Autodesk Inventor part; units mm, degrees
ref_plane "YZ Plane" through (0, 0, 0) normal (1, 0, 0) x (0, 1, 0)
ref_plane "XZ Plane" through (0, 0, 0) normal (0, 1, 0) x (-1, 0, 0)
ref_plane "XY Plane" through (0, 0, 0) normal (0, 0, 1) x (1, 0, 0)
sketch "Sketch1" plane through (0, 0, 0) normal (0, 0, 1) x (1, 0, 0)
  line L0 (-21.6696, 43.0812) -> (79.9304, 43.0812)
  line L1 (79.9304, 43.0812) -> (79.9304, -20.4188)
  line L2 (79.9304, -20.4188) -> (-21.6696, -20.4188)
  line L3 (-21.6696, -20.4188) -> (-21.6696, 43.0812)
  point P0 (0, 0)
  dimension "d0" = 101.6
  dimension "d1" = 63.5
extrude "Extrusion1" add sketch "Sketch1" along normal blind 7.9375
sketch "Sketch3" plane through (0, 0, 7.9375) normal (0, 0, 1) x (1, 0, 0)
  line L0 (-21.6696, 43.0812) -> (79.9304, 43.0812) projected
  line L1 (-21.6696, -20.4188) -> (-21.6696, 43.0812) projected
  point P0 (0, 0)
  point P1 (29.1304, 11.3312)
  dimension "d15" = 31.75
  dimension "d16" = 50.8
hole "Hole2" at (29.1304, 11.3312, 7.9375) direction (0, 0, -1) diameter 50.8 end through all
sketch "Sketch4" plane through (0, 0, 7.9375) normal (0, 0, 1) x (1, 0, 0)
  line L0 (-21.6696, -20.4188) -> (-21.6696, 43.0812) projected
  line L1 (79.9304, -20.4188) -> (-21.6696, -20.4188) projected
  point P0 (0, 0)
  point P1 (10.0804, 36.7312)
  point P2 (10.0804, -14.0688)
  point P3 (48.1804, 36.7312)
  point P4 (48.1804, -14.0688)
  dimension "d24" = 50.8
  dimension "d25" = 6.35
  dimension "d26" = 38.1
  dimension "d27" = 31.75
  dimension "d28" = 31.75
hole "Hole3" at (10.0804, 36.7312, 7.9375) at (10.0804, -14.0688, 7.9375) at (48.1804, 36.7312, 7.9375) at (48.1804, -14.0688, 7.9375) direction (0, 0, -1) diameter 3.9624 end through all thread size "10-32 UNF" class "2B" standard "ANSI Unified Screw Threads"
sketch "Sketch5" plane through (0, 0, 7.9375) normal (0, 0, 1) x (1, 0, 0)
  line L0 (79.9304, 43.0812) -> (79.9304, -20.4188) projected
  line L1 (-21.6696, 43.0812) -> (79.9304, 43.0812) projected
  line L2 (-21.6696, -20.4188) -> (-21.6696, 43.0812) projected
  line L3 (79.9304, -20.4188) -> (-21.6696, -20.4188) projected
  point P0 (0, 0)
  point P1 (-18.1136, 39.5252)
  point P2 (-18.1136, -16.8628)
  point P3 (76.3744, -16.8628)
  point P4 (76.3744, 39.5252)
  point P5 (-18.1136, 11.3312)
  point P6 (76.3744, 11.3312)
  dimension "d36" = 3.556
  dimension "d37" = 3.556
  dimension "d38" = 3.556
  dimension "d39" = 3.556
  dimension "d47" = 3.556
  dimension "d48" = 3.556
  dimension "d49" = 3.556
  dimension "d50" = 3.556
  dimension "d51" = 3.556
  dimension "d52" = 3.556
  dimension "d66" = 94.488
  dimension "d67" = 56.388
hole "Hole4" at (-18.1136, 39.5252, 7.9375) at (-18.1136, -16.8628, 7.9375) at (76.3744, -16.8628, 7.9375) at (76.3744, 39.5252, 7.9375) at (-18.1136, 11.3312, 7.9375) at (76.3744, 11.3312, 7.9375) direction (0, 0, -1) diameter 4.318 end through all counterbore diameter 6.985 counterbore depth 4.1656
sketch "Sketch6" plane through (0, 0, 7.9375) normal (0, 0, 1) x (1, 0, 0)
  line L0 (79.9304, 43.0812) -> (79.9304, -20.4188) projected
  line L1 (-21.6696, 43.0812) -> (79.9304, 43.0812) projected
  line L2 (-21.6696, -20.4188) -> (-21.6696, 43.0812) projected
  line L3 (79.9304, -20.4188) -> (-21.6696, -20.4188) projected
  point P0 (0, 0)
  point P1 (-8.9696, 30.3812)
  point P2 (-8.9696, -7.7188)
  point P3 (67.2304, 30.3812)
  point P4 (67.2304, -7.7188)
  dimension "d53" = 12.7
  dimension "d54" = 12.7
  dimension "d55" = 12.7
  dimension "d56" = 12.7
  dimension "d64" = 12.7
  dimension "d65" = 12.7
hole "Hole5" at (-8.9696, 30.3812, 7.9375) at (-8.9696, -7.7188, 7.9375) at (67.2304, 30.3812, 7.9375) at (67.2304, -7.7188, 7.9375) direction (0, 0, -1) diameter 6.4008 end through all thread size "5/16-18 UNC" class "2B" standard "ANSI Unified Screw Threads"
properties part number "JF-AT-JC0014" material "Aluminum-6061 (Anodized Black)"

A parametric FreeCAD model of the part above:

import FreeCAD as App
import Part
import Sketcher

V = App.Vector
Q = App.Units.Quantity


def add_polygon(sketch, points):
    """Adds a closed chain of lines whose ends are joined by coincident constraints."""
    first, n = sketch.GeometryCount, len(points)
    for a, b in zip(points, points[1:] + points[:1]):
        sketch.addGeometry(Part.LineSegment(App.Vector(*a, 0), App.Vector(*b, 0)), False)
    for i in range(n):
        sketch.addConstraint(Sketcher.Constraint("Coincident", first + i, 2, first + (i + 1) % n, 1))

doc = App.newDocument("Part")
params = doc.addObject("Spreadsheet::Sheet", "Params")
for row, (alias, value) in enumerate([
    ("sketch1_width", "4 in"),
    ("sketch1_height", "2.5 in"),
    ("pad1_length", "0.3125 in"),
    ("sketch2_diameter", "2 in"),
    ("hole_diameter", "2 in"),
    ("sketch3_diameter", "0.156 in"),
    ("hole2_diameter", "0.156 in"),
    ("sketch4_diameter", "0.17 in"),
    ("hole3_diameter", "0.17 in"),
    ("hole3_cbore_diameter", "0.275 in"),
    ("hole3_cbore_depth", "0.164 in"),
    ("sketch5_diameter", "0.252 in"),
    ("hole4_diameter", "0.252 in"),
], start=1):
    params.set(f"A{row}", alias)
    params.set(f"B{row}", "=" + value)
    params.setAlias(f"B{row}", alias)

body = doc.addObject("PartDesign::Body", "Body")

sketch1 = doc.addObject("Sketcher::SketchObject", "Sketch")
body.addObject(sketch1)
sketch1.AttachmentSupport = (doc.XY_Plane, [""])
sketch1.MapMode = "FlatFace"
add_polygon(sketch1, [(80, 43), (-22, 43), (-22, -20), (80, -20)])
sketch1.addConstraint(Sketcher.Constraint("Horizontal", 0))
sketch1.addConstraint(Sketcher.Constraint("Vertical", 1))
sketch1.addConstraint(Sketcher.Constraint("Horizontal", 2))
sketch1.addConstraint(Sketcher.Constraint("Vertical", 3))
sketch1.addConstraint(Sketcher.Constraint("DistanceX", 0, 2, 0, 1, Q("4 in")))
sketch1.addConstraint(Sketcher.Constraint("DistanceY", 1, 2, 1, 1, Q("2.5 in")))
sketch1.addConstraint(Sketcher.Constraint("DistanceY", -1, 1, 0, 2, Q("1.6961 in")))
sketch1.addConstraint(Sketcher.Constraint("DistanceX", 0, 2, -1, 1, Q("21.6696 mm")))
sketch1.setExpression("Constraints[8]", "Params.sketch1_width")
sketch1.setExpression("Constraints[9]", "Params.sketch1_height")
pad1 = doc.addObject("PartDesign::Pad", "Pad")
body.addObject(pad1)
pad1.Profile = sketch1
pad1.setExpression("Length", "Params.pad1_length")

sketch2 = doc.addObject("Sketcher::SketchObject", "Sketch001")
body.addObject(sketch2)
sketch2.AttachmentSupport = (doc.XY_Plane, [""])
sketch2.MapMode = "FlatFace"
sketch2.AttachmentOffset = App.Placement(V(0, 0, 0.3125 * 25.4), App.Rotation())
sketch2.addGeometry(Part.Circle(V(29, 11, 0), V(0, 0, 1), 25), False)
sketch2.addConstraint(Sketcher.Constraint("Diameter", 0, Q("2 in")))
sketch2.addConstraint(Sketcher.Constraint("DistanceY", -1, 1, 0, 3, Q("0.4461 in")))
sketch2.addConstraint(Sketcher.Constraint("DistanceX", -1, 1, 0, 3, Q("29.1304 mm")))
sketch2.setExpression("Constraints[0]", "Params.sketch2_diameter")
doc.recompute()
hole = doc.addObject("PartDesign::Hole", "Hole")
body.addObject(hole)
hole.Profile = sketch2
hole.ThreadType = "None"
hole.setExpression("Diameter", "Params.hole_diameter")
hole.DepthType = "ThroughAll"

sketch3 = doc.addObject("Sketcher::SketchObject", "Sketch002")
body.addObject(sketch3)
sketch3.AttachmentSupport = (doc.XY_Plane, [""])
sketch3.MapMode = "FlatFace"
sketch3.AttachmentOffset = App.Placement(V(0, 0, 0.3125 * 25.4), App.Rotation())
sketch3.addGeometry(Part.Circle(V(10.1, 36.7, 0), V(0, 0, 1), 2), False)
sketch3.addGeometry(Part.Circle(V(10.1, -14.1, 0), V(0, 0, 1), 2), False)
sketch3.addGeometry(Part.Circle(V(48.2, 36.7, 0), V(0, 0, 1), 2), False)
sketch3.addGeometry(Part.Circle(V(48.2, -14.1, 0), V(0, 0, 1), 2), False)
sketch3.addConstraint(Sketcher.Constraint("Equal", 0, 1))
sketch3.addConstraint(Sketcher.Constraint("Equal", 1, 2))
sketch3.addConstraint(Sketcher.Constraint("Equal", 2, 3))
sketch3.addConstraint(Sketcher.Constraint("Horizontal", 0, 3, 2, 3))
sketch3.addConstraint(Sketcher.Constraint("Horizontal", 1, 3, 3, 3))
sketch3.addConstraint(Sketcher.Constraint("Vertical", 0, 3, 1, 3))
sketch3.addConstraint(Sketcher.Constraint("Vertical", 2, 3, 3, 3))
sketch3.addConstraint(Sketcher.Constraint("Diameter", 0, Q("0.156 in")))
sketch3.addConstraint(Sketcher.Constraint("DistanceY", 1, 3, 0, 3, Q("2 in")))
sketch3.addConstraint(Sketcher.Constraint("DistanceX", 0, 3, 2, 3, Q("1.5 in")))
sketch3.addConstraint(Sketcher.Constraint("DistanceY", -1, 1, 0, 3, Q("1.4461 in")))
sketch3.addConstraint(Sketcher.Constraint("DistanceX", -1, 1, 0, 3, Q("10.0804 mm")))
sketch3.setExpression("Constraints[7]", "Params.sketch3_diameter")
doc.recompute()
hole2 = doc.addObject("PartDesign::Hole", "Hole001")
body.addObject(hole2)
hole2.Profile = sketch3
hole2.ThreadType = "None"
hole2.setExpression("Diameter", "Params.hole2_diameter")
hole2.DepthType = "ThroughAll"

sketch4 = doc.addObject("Sketcher::SketchObject", "Sketch003")
body.addObject(sketch4)
sketch4.AttachmentSupport = (doc.XY_Plane, [""])
sketch4.MapMode = "FlatFace"
sketch4.AttachmentOffset = App.Placement(V(0, 0, 0.3125 * 25.4), App.Rotation())
sketch4.addGeometry(Part.Circle(V(-18.1, 39.5, 0), V(0, 0, 1), 2.2), False)
sketch4.addGeometry(Part.Circle(V(-18.1, -16.9, 0), V(0, 0, 1), 2.2), False)
sketch4.addGeometry(Part.Circle(V(76.4, -16.9, 0), V(0, 0, 1), 2.2), False)
sketch4.addGeometry(Part.Circle(V(76.4, 39.5, 0), V(0, 0, 1), 2.2), False)
sketch4.addGeometry(Part.Circle(V(-18.1, 11.3, 0), V(0, 0, 1), 2.2), False)
sketch4.addGeometry(Part.Circle(V(76.4, 11.3, 0), V(0, 0, 1), 2.2), False)
sketch4.addConstraint(Sketcher.Constraint("Equal", 0, 1))
sketch4.addConstraint(Sketcher.Constraint("Equal", 1, 2))
sketch4.addConstraint(Sketcher.Constraint("Equal", 2, 3))
sketch4.addConstraint(Sketcher.Constraint("Equal", 3, 4))
sketch4.addConstraint(Sketcher.Constraint("Equal", 4, 5))
sketch4.addConstraint(Sketcher.Constraint("Horizontal", 1, 3, 2, 3))
sketch4.addConstraint(Sketcher.Constraint("Horizontal", 0, 3, 3, 3))
sketch4.addConstraint(Sketcher.Constraint("Horizontal", 4, 3, 5, 3))
sketch4.addConstraint(Sketcher.Constraint("Vertical", 0, 3, 1, 3))
sketch4.addConstraint(Sketcher.Constraint("Vertical", 2, 3, 3, 3))
sketch4.addConstraint(Sketcher.Constraint("Vertical", 1, 3, 4, 3))
sketch4.addConstraint(Sketcher.Constraint("Vertical", 3, 3, 5, 3))
sketch4.addConstraint(Sketcher.Constraint("Diameter", 0, Q("0.17 in")))
sketch4.addConstraint(Sketcher.Constraint("DistanceY", 1, 3, 0, 3, Q("2.22 in")))
sketch4.addConstraint(Sketcher.Constraint("DistanceX", 1, 3, 2, 3, Q("3.72 in")))
sketch4.addConstraint(Sketcher.Constraint("DistanceY", 4, 3, 0, 3, Q("1.11 in")))
sketch4.addConstraint(Sketcher.Constraint("DistanceY", -1, 1, 0, 3, Q("1.5561 in")))
sketch4.addConstraint(Sketcher.Constraint("DistanceX", 0, 3, -1, 1, Q("18.1136 mm")))
sketch4.setExpression("Constraints[12]", "Params.sketch4_diameter")
doc.recompute()
hole3 = doc.addObject("PartDesign::Hole", "Hole002")
body.addObject(hole3)
hole3.Profile = sketch4
hole3.ThreadType = "None"
hole3.setExpression("Diameter", "Params.hole3_diameter")
hole3.DepthType = "ThroughAll"
hole3.HoleCutType = "Counterbore"
hole3.setExpression("HoleCutDiameter", "Params.hole3_cbore_diameter")
hole3.setExpression("HoleCutDepth", "Params.hole3_cbore_depth")

sketch5 = doc.addObject("Sketcher::SketchObject", "Sketch004")
body.addObject(sketch5)
sketch5.AttachmentSupport = (doc.XY_Plane, [""])
sketch5.MapMode = "FlatFace"
sketch5.AttachmentOffset = App.Placement(V(0, 0, 0.3125 * 25.4), App.Rotation())
sketch5.addGeometry(Part.Circle(V(-9, 30.4, 0), V(0, 0, 1), 3.2), False)
sketch5.addGeometry(Part.Circle(V(-9, -7.7, 0), V(0, 0, 1), 3.2), False)
sketch5.addGeometry(Part.Circle(V(67.2, 30.4, 0), V(0, 0, 1), 3.2), False)
sketch5.addGeometry(Part.Circle(V(67.2, -7.7, 0), V(0, 0, 1), 3.2), False)
sketch5.addConstraint(Sketcher.Constraint("Equal", 0, 1))
sketch5.addConstraint(Sketcher.Constraint("Equal", 1, 2))
sketch5.addConstraint(Sketcher.Constraint("Equal", 2, 3))
sketch5.addConstraint(Sketcher.Constraint("Horizontal", 0, 3, 2, 3))
sketch5.addConstraint(Sketcher.Constraint("Horizontal", 1, 3, 3, 3))
sketch5.addConstraint(Sketcher.Constraint("Vertical", 0, 3, 1, 3))
sketch5.addConstraint(Sketcher.Constraint("Vertical", 2, 3, 3, 3))
sketch5.addConstraint(Sketcher.Constraint("Diameter", 0, Q("0.252 in")))
sketch5.addConstraint(Sketcher.Constraint("DistanceX", 0, 3, 2, 3, Q("3 in")))
sketch5.addConstraint(Sketcher.Constraint("DistanceY", 1, 3, 0, 3, Q("1.5 in")))
sketch5.addConstraint(Sketcher.Constraint("DistanceY", -1, 1, 0, 3, Q("1.1961 in")))
sketch5.addConstraint(Sketcher.Constraint("DistanceX", 0, 3, -1, 1, Q("8.9696 mm")))
sketch5.setExpression("Constraints[7]", "Params.sketch5_diameter")
doc.recompute()
hole4 = doc.addObject("PartDesign::Hole", "Hole003")
body.addObject(hole4)
hole4.Profile = sketch5
hole4.ThreadType = "None"
hole4.setExpression("Diameter", "Params.hole4_diameter")
hole4.DepthType = "ThroughAll"

doc.recompute()
